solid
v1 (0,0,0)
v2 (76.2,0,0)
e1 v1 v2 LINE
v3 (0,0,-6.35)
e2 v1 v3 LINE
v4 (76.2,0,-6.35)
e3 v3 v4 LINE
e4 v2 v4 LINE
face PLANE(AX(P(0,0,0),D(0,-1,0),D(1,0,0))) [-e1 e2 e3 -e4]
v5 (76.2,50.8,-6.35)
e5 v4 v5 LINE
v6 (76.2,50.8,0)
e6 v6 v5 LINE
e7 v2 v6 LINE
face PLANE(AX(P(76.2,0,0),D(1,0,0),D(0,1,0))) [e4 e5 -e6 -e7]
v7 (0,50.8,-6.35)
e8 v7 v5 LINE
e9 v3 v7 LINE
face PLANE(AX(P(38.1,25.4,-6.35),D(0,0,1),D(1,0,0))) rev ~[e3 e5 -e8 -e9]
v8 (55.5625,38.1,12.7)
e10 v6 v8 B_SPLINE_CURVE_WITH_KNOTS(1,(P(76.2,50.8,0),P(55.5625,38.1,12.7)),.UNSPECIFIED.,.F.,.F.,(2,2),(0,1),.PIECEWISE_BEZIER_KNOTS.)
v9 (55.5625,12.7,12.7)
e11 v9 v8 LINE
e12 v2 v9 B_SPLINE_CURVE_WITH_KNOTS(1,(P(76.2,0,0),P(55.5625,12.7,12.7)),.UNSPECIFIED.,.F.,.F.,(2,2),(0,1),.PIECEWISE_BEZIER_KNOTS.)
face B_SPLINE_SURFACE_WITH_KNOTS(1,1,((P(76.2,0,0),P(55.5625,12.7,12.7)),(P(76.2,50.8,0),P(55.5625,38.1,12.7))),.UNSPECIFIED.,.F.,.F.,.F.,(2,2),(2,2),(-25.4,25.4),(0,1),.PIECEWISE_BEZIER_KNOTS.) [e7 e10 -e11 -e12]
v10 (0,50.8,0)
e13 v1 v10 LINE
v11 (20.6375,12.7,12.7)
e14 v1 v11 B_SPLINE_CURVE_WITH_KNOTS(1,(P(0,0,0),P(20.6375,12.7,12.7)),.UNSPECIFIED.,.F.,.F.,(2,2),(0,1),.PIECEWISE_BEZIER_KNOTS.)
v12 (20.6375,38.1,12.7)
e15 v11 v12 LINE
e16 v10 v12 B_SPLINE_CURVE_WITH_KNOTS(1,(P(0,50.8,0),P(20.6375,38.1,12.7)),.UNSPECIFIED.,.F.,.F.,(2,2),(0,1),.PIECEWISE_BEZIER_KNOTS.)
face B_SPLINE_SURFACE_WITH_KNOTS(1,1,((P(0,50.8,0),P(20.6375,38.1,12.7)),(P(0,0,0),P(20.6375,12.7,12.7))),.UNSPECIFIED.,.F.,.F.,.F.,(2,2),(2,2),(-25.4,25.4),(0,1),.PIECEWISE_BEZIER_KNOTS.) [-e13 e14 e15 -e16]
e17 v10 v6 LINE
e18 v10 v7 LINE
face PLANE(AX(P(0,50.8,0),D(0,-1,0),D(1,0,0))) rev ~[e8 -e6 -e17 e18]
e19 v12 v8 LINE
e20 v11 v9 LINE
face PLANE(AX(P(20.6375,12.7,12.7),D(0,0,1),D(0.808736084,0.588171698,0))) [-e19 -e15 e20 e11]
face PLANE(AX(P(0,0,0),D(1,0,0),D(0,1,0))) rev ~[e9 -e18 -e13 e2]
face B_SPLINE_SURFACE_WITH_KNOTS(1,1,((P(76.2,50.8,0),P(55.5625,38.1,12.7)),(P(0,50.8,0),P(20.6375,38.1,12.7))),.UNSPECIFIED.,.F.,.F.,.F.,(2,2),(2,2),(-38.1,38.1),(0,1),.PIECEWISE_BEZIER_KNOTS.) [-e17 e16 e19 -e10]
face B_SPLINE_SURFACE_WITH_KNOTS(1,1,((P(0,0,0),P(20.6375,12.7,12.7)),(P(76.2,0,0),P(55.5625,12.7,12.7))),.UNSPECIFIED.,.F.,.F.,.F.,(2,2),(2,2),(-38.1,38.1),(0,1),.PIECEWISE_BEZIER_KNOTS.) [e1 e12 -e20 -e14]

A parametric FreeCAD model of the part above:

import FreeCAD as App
import Part
import Sketcher
from FreeCAD import Vector
Q = App.Units.Quantity

doc = App.newDocument("Part")
body = doc.addObject("PartDesign::Body", "Body")

# Sketch on XY plane
sketch1 = body.newObject("Sketcher::SketchObject", "Sketch")
sketch1.AttachmentSupport = (doc.getObject("XY_Plane"), [""])
sketch1.MapMode = "FlatFace"
sketch1.addGeometry([
    Part.LineSegment(Vector(0, 50.8, 0), Vector(0, 0, 0)),
    Part.LineSegment(Vector(0, 0, 0), Vector(76.2, 0, 0)),
    Part.LineSegment(Vector(76.2, 0, 0), Vector(76.2, 50.8, 0)),
    Part.LineSegment(Vector(76.2, 50.8, 0), Vector(0, 50.8, 0)),
], False)
sketch1.addConstraint([
    Sketcher.Constraint("Coincident", 0, 2, 1, 1),
    Sketcher.Constraint("Coincident", 1, 2, 2, 1),
    Sketcher.Constraint("Coincident", 2, 2, 3, 1),
    Sketcher.Constraint("Coincident", 3, 2, 0, 1),
    Sketcher.Constraint("Vertical", 0),
    Sketcher.Constraint("Horizontal", 1),
    Sketcher.Constraint("Vertical", 2),
    Sketcher.Constraint("Horizontal", 3),
    Sketcher.Constraint("Coincident", 0, 2, -1, 1),
    Sketcher.Constraint("DistanceX", 1, 1, 1, 2, Q("3 in")),
    Sketcher.Constraint("DistanceY", 0, 2, 0, 1, Q("2 in")),
])
pad1 = body.newObject("PartDesign::Pad", "Pad")
pad1.Profile = sketch1
pad1.Length = Q("0.25 in")
pad1.Reversed = True

# Sketch on XY plane
sketch2 = body.newObject("Sketcher::SketchObject", "Sketch001")
sketch2.AttachmentSupport = (doc.getObject("XY_Plane"), [""])
sketch2.MapMode = "FlatFace"
sketch2.addGeometry([
    Part.LineSegment(Vector(0, 50.8, 0), Vector(0, 0, 0)),
    Part.LineSegment(Vector(0, 0, 0), Vector(76.2, 0, 0)),
    Part.LineSegment(Vector(76.2, 0, 0), Vector(76.2, 50.8, 0)),
    Part.LineSegment(Vector(76.2, 50.8, 0), Vector(0, 50.8, 0)),
], False)
sketch2.addConstraint([
    Sketcher.Constraint("Coincident", 0, 2, 1, 1),
    Sketcher.Constraint("Coincident", 1, 2, 2, 1),
    Sketcher.Constraint("Coincident", 2, 2, 3, 1),
    Sketcher.Constraint("Coincident", 3, 2, 0, 1),
    Sketcher.Constraint("Vertical", 0),
    Sketcher.Constraint("Horizontal", 1),
    Sketcher.Constraint("Vertical", 2),
    Sketcher.Constraint("Horizontal", 3),
    Sketcher.Constraint("Coincident", 0, 2, -1, 1),
    Sketcher.Constraint("DistanceX", 1, 1, 1, 2, Q("3 in")),
    Sketcher.Constraint("DistanceY", 0, 2, 0, 1, Q("2 in")),
])

# Sketch on XY plane
sketch3 = body.newObject("Sketcher::SketchObject", "Sketch002")
sketch3.AttachmentSupport = (doc.getObject("XY_Plane"), [""])
sketch3.MapMode = "FlatFace"
sketch3.AttachmentOffset = App.Placement(Vector(0, 0, 0.5 * 25.4), App.Rotation())
sketch3.addGeometry([
    Part.LineSegment(Vector(20.6375, 38.1, 0), Vector(20.6375, 12.7, 0)),
    Part.LineSegment(Vector(20.6375, 12.7, 0), Vector(55.5625, 12.7, 0)),
    Part.LineSegment(Vector(55.5625, 12.7, 0), Vector(55.5625, 38.1, 0)),
    Part.LineSegment(Vector(55.5625, 38.1, 0), Vector(20.6375, 38.1, 0)),
], False)
sketch3.addConstraint([
    Sketcher.Constraint("Coincident", 0, 2, 1, 1),
    Sketcher.Constraint("Coincident", 1, 2, 2, 1),
    Sketcher.Constraint("Coincident", 2, 2, 3, 1),
    Sketcher.Constraint("Coincident", 3, 2, 0, 1),
    Sketcher.Constraint("Vertical", 0),
    Sketcher.Constraint("Horizontal", 1),
    Sketcher.Constraint("Vertical", 2),
    Sketcher.Constraint("Horizontal", 3),
    Sketcher.Constraint("DistanceY", 0, 2, 0, 1, Q("1 in")),
    Sketcher.Constraint("DistanceY", -1, 1, 0, 2, Q("0.5 in")),
    Sketcher.Constraint("DistanceX", 1, 1, 1, 2, Q("1.375 in")),
    Sketcher.Constraint("DistanceX", -1, 1, 0, 2, Q("0.8125 in")),
])

additiveloft = body.newObject("PartDesign::AdditiveLoft", "AdditiveLoft")
additiveloft.Profile = sketch2
additiveloft.Sections = [sketch3]

doc.recompute()
